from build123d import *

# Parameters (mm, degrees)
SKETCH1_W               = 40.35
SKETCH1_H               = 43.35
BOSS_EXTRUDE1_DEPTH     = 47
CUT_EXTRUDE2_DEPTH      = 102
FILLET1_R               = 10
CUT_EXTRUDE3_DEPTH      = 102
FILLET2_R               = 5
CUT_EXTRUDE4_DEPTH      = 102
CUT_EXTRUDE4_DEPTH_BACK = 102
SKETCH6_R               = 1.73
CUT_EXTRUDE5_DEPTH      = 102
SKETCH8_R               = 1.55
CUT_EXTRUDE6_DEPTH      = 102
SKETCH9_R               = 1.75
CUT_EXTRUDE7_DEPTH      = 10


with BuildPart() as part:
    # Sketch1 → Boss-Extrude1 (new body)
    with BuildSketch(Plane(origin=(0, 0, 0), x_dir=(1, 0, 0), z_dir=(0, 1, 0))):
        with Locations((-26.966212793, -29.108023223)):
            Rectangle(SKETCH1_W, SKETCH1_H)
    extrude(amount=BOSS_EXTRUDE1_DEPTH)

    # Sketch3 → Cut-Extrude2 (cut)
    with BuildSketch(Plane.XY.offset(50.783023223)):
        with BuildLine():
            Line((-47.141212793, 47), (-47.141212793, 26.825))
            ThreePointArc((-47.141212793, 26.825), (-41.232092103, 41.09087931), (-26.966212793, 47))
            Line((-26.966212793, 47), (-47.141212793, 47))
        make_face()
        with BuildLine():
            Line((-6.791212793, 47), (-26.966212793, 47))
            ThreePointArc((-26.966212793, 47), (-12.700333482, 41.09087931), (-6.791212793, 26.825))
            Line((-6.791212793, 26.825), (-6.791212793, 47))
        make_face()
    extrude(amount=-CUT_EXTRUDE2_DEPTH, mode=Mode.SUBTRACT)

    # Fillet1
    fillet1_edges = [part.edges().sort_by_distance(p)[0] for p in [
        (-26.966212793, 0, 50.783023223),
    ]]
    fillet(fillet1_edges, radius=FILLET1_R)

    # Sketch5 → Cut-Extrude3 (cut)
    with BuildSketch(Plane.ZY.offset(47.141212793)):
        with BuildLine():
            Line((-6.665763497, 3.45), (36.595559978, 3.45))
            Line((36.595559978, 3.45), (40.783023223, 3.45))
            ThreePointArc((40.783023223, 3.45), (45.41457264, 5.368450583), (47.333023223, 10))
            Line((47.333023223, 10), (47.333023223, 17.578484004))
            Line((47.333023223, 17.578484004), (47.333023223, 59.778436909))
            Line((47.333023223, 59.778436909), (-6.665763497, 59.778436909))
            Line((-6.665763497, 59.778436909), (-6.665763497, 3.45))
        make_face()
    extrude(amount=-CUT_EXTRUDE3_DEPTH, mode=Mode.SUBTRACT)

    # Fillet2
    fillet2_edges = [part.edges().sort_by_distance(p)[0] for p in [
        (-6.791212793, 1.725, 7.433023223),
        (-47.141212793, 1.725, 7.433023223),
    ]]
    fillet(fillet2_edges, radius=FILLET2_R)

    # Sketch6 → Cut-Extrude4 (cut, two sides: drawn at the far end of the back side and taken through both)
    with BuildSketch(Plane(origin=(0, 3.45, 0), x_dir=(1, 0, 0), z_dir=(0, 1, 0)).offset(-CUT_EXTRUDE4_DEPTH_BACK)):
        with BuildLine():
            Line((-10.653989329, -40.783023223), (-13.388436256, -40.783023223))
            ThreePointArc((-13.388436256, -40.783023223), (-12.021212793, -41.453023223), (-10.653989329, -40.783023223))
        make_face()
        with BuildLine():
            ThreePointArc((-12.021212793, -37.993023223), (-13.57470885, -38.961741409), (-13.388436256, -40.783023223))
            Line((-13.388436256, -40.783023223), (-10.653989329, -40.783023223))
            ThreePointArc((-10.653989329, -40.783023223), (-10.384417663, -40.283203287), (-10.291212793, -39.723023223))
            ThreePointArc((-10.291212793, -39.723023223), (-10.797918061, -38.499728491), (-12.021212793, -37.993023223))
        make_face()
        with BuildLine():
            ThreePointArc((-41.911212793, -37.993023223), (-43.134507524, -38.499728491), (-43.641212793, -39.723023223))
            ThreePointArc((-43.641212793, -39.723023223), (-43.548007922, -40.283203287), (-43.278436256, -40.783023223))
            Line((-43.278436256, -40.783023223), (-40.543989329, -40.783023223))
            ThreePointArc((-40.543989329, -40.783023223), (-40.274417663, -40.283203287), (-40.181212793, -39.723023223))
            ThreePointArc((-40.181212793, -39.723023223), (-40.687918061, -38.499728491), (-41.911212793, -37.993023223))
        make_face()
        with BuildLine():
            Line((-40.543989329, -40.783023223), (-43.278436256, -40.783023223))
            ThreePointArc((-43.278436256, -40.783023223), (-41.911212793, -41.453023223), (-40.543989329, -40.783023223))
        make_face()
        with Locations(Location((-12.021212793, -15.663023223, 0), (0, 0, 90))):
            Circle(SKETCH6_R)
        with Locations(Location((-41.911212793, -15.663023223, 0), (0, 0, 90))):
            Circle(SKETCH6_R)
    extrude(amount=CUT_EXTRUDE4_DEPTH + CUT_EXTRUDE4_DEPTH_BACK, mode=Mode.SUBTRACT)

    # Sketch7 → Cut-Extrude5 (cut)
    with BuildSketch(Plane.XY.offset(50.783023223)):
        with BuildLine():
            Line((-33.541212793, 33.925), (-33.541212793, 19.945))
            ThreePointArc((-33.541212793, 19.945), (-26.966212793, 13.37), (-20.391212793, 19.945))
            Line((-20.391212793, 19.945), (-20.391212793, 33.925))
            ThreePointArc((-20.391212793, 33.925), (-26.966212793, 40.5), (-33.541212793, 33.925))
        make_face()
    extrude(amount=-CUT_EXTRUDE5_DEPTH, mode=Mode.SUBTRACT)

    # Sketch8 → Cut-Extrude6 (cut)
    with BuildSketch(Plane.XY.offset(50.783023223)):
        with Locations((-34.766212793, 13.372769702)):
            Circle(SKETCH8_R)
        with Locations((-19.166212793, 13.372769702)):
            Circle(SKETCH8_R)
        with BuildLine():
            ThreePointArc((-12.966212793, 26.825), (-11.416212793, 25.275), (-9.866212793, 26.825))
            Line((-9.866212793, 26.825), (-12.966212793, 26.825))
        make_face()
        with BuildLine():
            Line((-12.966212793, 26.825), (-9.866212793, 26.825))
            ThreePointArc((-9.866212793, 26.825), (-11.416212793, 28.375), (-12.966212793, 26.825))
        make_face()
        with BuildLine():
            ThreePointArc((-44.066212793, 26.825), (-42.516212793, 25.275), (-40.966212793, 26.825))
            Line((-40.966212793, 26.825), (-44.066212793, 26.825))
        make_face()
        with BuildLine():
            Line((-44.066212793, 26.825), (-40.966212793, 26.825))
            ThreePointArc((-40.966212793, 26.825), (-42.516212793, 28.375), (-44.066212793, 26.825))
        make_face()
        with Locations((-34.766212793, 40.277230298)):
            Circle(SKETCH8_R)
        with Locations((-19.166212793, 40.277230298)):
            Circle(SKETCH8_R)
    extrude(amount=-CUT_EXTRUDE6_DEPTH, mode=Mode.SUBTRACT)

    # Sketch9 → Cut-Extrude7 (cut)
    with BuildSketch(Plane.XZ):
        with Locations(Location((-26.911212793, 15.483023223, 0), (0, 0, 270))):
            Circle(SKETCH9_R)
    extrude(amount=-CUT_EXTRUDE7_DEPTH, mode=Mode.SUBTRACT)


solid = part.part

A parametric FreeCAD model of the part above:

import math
import FreeCAD as App
import Part
import Sketcher
Q = App.Units.Quantity


def edges_at(feature, points):
    """Names of the edges that pass closest to the given points."""
    edges = feature.Shape.Edges
    near = lambda p: min(range(len(edges)), key=lambda i: edges[i].distToShape(Part.Vertex(*p))[0])
    return sorted({f"Edge{near(p) + 1}" for p in points})

doc = App.newDocument("Part")
params = doc.addObject("Spreadsheet::Sheet", "Params")
for row, (alias, value) in enumerate([
    ("sketch1_width", "40.35 mm"),
    ("sketch1_height", "43.35 mm"),
    ("pad1_length", "47 mm"),
    ("pocket1_length", "102 mm"),
    ("fillet_radius", "10 mm"),
    ("sketch3_radius", "6.55 mm"),
    ("pocket2_length", "102 mm"),
    ("fillet2_radius", "5 mm"),
    ("sketch4_diameter", "3.46 mm"),
    ("sketch5_height", "13.98 mm"),
    ("pocket4_length", "102 mm"),
    ("sketch6_diameter", "3.1 mm"),
    ("pocket5_length", "102 mm"),
    ("sketch7_diameter", "3.5 mm"),
    ("pocket6_length", "10 mm"),
], start=1):
    params.set(f"A{row}", alias)
    params.set(f"B{row}", "=" + value)
    params.setAlias(f"B{row}", alias)

body = doc.addObject("PartDesign::Body", "Body")

# Sketch on XZ plane
sketch1 = body.newObject("Sketcher::SketchObject", "Sketch")
sketch1.AttachmentSupport = (doc.getObject("XZ_Plane"), [""])
sketch1.MapMode = "FlatFace"
sketch1.addGeometry(Part.LineSegment(App.Vector(-47.141213, 7.433023, 0), App.Vector(-47.141213, 50.783023, 0)), False)
sketch1.addGeometry(Part.LineSegment(App.Vector(-47.141213, 50.783023, 0), App.Vector(-6.791213, 50.783023, 0)), False)
sketch1.addGeometry(Part.LineSegment(App.Vector(-6.791213, 50.783023, 0), App.Vector(-6.791213, 7.433023, 0)), False)
sketch1.addGeometry(Part.LineSegment(App.Vector(-6.791213, 7.433023, 0), App.Vector(-47.141213, 7.433023, 0)), False)
sketch1.addConstraint(Sketcher.Constraint("Coincident", 0, 2, 1, 1))
sketch1.addConstraint(Sketcher.Constraint("Coincident", 1, 2, 2, 1))
sketch1.addConstraint(Sketcher.Constraint("Coincident", 2, 2, 3, 1))
sketch1.addConstraint(Sketcher.Constraint("Coincident", 3, 2, 0, 1))
sketch1.addConstraint(Sketcher.Constraint("Vertical", 0))
sketch1.addConstraint(Sketcher.Constraint("Horizontal", 1))
sketch1.addConstraint(Sketcher.Constraint("Vertical", 2))
sketch1.addConstraint(Sketcher.Constraint("Horizontal", 3))
sketch1.addConstraint(Sketcher.Constraint("DistanceX", 1, 1, 1, 2, Q("40.35 mm")))
sketch1.addConstraint(Sketcher.Constraint("DistanceY", 0, 1, 0, 2, Q("43.35 mm")))
sketch1.addConstraint(Sketcher.Constraint("DistanceX", 0, 2, -1, 1, Q("47.141213 mm")))
sketch1.addConstraint(Sketcher.Constraint("DistanceY", -1, 1, 0, 2, Q("50.783023 mm")))
sketch1.setExpression("Constraints[8]", "Params.sketch1_width")
sketch1.setExpression("Constraints[9]", "Params.sketch1_height")
pad1 = body.newObject("PartDesign::Pad", "Pad")
pad1.Profile = sketch1
pad1.setExpression("Length", "Params.pad1_length")
pad1.Reversed = True

# Sketch on XY plane
sketch2 = body.newObject("Sketcher::SketchObject", "Sketch001")
sketch2.AttachmentSupport = (doc.getObject("XY_Plane"), [""])
sketch2.MapMode = "FlatFace"
sketch2.AttachmentOffset = App.Placement(App.Vector(0, 0, 50.783023), App.Rotation())
sketch2.addGeometry(Part.LineSegment(App.Vector(-47.141213, 47, 0), App.Vector(-47.141213, 26.825, 0)), False)
sketch2.addGeometry(Part.ArcOfCircle(Part.Circle(App.Vector(-26.966213, 26.825, 0), App.Vector(0, 0, 1), 20.175), math.radians(90), math.radians(180)), False)
sketch2.addGeometry(Part.LineSegment(App.Vector(-26.966213, 47, 0), App.Vector(-47.141213, 47, 0)), False)
sketch2.addGeometry(Part.LineSegment(App.Vector(-6.791213, 47, 0), App.Vector(-26.966213, 47, 0)), False)
sketch2.addGeometry(Part.ArcOfCircle(Part.Circle(App.Vector(-26.966213, 26.825, 0), App.Vector(0, 0, 1), 20.175), math.radians(0), math.radians(90)), False)
sketch2.addGeometry(Part.LineSegment(App.Vector(-6.791213, 26.825, 0), App.Vector(-6.791213, 47, 0)), False)
sketch2.addConstraint(Sketcher.Constraint("Tangent", 0, 2, 1, 2))
sketch2.addConstraint(Sketcher.Constraint("Tangent", 1, 1, 2, 1))
sketch2.addConstraint(Sketcher.Constraint("Coincident", 2, 2, 0, 1))
sketch2.addConstraint(Sketcher.Constraint("Tangent", 3, 2, 4, 2))
sketch2.addConstraint(Sketcher.Constraint("Tangent", 4, 1, 5, 1))
sketch2.addConstraint(Sketcher.Constraint("Coincident", 5, 2, 3, 1))
sketch2.addConstraint(Sketcher.Constraint("Vertical", 0))
sketch2.addConstraint(Sketcher.Constraint("Horizontal", 2))
sketch2.addConstraint(Sketcher.Constraint("Horizontal", 3))
sketch2.addConstraint(Sketcher.Constraint("Vertical", 5))
sketch2.addConstraint(Sketcher.Constraint("Coincident", 4, 3, 1, 3))
sketch2.addConstraint(Sketcher.Constraint("Equal", 1, 4))
sketch2.addConstraint(Sketcher.Constraint("DistanceY", -1, 1, 1, 1, Q("47 mm")))
sketch2.addConstraint(Sketcher.Constraint("Radius", 1, Q("20.175 mm")))
sketch2.addConstraint(Sketcher.Constraint("DistanceX", 1, 3, -1, 1, Q("26.966213 mm")))
pocket1 = body.newObject("PartDesign::Pocket", "Pocket")
pocket1.Profile = sketch2
pocket1.setExpression("Length", "Params.pocket1_length")
doc.recompute()

fillet = body.newObject("PartDesign::Fillet", "Fillet")
fillet.Base = (pocket1, edges_at(pocket1, [(-26.966, 0, 50.783)]))
fillet.setExpression("Radius", "Params.fillet_radius")

# Sketch on YZ plane
sketch3 = body.newObject("Sketcher::SketchObject", "Sketch002")
sketch3.AttachmentSupport = (doc.getObject("YZ_Plane"), [""])
sketch3.MapMode = "FlatFace"
sketch3.AttachmentOffset = App.Placement(App.Vector(0, 0, -47.141213), App.Rotation())
sketch3.addGeometry(Part.LineSegment(App.Vector(3.45, -6.665763, 0), App.Vector(3.45, 40.783023, 0)), False)
sketch3.addGeometry(Part.ArcOfCircle(Part.Circle(App.Vector(10, 40.783023, 0), App.Vector(0, 0, 1), 6.55), math.radians(90), math.radians(180)), False)
sketch3.addGeometry(Part.LineSegment(App.Vector(10, 47.333023, 0), App.Vector(59.778437, 47.333023, 0)), False)
sketch3.addGeometry(Part.LineSegment(App.Vector(59.778437, 47.333023, 0), App.Vector(59.778437, -6.665763, 0)), False)
sketch3.addGeometry(Part.LineSegment(App.Vector(59.778437, -6.665763, 0), App.Vector(3.45, -6.665763, 0)), False)
sketch3.addConstraint(Sketcher.Constraint("Tangent", 0, 2, 1, 2))
sketch3.addConstraint(Sketcher.Constraint("Tangent", 1, 1, 2, 1))
sketch3.addConstraint(Sketcher.Constraint("Coincident", 2, 2, 3, 1))
sketch3.addConstraint(Sketcher.Constraint("Coincident", 3, 2, 4, 1))
sketch3.addConstraint(Sketcher.Constraint("Coincident", 4, 2, 0, 1))
sketch3.addConstraint(Sketcher.Constraint("Vertical", 0))
sketch3.addConstraint(Sketcher.Constraint("Horizontal", 2))
sketch3.addConstraint(Sketcher.Constraint("Vertical", 3))
sketch3.addConstraint(Sketcher.Constraint("Horizontal", 4))
sketch3.addConstraint(Sketcher.Constraint("Radius", 1, Q("6.55 mm")))
sketch3.addConstraint(Sketcher.Constraint("DistanceX", -1, 1, 1, 3, Q("10 mm")))
sketch3.addConstraint(Sketcher.Constraint("DistanceX", 2, 1, 2, 2, Q("49.778437 mm")))
sketch3.addConstraint(Sketcher.Constraint("DistanceY", 0, 1, 0, 2, Q("47.448787 mm")))
sketch3.addConstraint(Sketcher.Constraint("DistanceY", -1, 1, 1, 3, Q("40.783023 mm")))
sketch3.setExpression("Constraints[9]", "Params.sketch3_radius")
pocket2 = body.newObject("PartDesign::Pocket", "Pocket001")
pocket2.Profile = sketch3
pocket2.setExpression("Length", "Params.pocket2_length")
pocket2.Reversed = True
doc.recompute()

fillet2 = body.newObject("PartDesign::Fillet", "Fillet001")
fillet2.Base = (pocket2, edges_at(pocket2, [(-6.791, 1.725, 7.433), (-47.141, 1.725, 7.433)]))
fillet2.setExpression("Radius", "Params.fillet2_radius")

# Sketch on XZ plane
sketch4 = body.newObject("Sketcher::SketchObject", "Sketch003")
sketch4.AttachmentSupport = (doc.getObject("XZ_Plane"), [""])
sketch4.MapMode = "FlatFace"
sketch4.AttachmentOffset = App.Placement(App.Vector(0, 0, -3.45), App.Rotation())
sketch4.addGeometry(Part.ArcOfCircle(Part.Circle(App.Vector(-12.021213, 39.723023, 0), App.Vector(0, 0, 1), 1.73), math.radians(37.786203), math.radians(142.213797)), False)
sketch4.addGeometry(Part.ArcOfCircle(Part.Circle(App.Vector(-12.021213, 39.723023, 0), App.Vector(0, 0, 1), 1.73), math.radians(0), math.radians(37.786203)), False)
sketch4.addGeometry(Part.ArcOfCircle(Part.Circle(App.Vector(-12.021213, 39.723023, 0), App.Vector(0, 0, 1), 1.73), math.radians(-90), math.radians(0)), False)
sketch4.addGeometry(Part.ArcOfCircle(Part.Circle(App.Vector(-12.021213, 39.723023, 0), App.Vector(0, 0, 1), 1.73), math.radians(142.213797), math.radians(270)), False)
sketch4.addGeometry(Part.ArcOfCircle(Part.Circle(App.Vector(-41.911213, 39.723023, 0), App.Vector(0, 0, 1), 1.73), math.radians(0), math.radians(37.786203)), False)
sketch4.addGeometry(Part.ArcOfCircle(Part.Circle(App.Vector(-41.911213, 39.723023, 0), App.Vector(0, 0, 1), 1.73), math.radians(-90), math.radians(0)), False)
sketch4.addGeometry(Part.ArcOfCircle(Part.Circle(App.Vector(-41.911213, 39.723023, 0), App.Vector(0, 0, 1), 1.73), math.radians(180), math.radians(270)), False)
sketch4.addGeometry(Part.ArcOfCircle(Part.Circle(App.Vector(-41.911213, 39.723023, 0), App.Vector(0, 0, 1), 1.73), math.radians(142.213797), math.radians(180)), False)
sketch4.addGeometry(Part.ArcOfCircle(Part.Circle(App.Vector(-41.911213, 39.723023, 0), App.Vector(0, 0, 1), 1.73), math.radians(37.786203), math.radians(142.213797)), False)
sketch4.addGeometry(Part.Circle(App.Vector(-12.021213, 15.663023, 0), App.Vector(0, 0, 1), 1.73), False)
sketch4.addGeometry(Part.Circle(App.Vector(-41.911213, 15.663023, 0), App.Vector(0, 0, 1), 1.73), False)
sketch4.addConstraint(Sketcher.Constraint("Tangent", 0, 1, 1, 2))
sketch4.addConstraint(Sketcher.Constraint("Tangent", 1, 1, 2, 2))
sketch4.addConstraint(Sketcher.Constraint("Tangent", 2, 1, 3, 2))
sketch4.addConstraint(Sketcher.Constraint("Tangent", 3, 1, 0, 2))
sketch4.addConstraint(Sketcher.Constraint("Tangent", 4, 1, 5, 2))
sketch4.addConstraint(Sketcher.Constraint("Tangent", 5, 1, 6, 2))
sketch4.addConstraint(Sketcher.Constraint("Tangent", 6, 1, 7, 2))
sketch4.addConstraint(Sketcher.Constraint("Tangent", 7, 1, 8, 2))
sketch4.addConstraint(Sketcher.Constraint("Tangent", 8, 1, 4, 2))
sketch4.addConstraint(Sketcher.Constraint("Coincident", 6, 3, 4, 3))
sketch4.addConstraint(Sketcher.Constraint("Equal", 0, 1))
sketch4.addConstraint(Sketcher.Constraint("Equal", 3, 4))
sketch4.addConstraint(Sketcher.Constraint("Equal", 8, 9))
sketch4.addConstraint(Sketcher.Constraint("Equal", 9, 10))
sketch4.addConstraint(Sketcher.Constraint("Horizontal", 3, 3, 4, 3))
sketch4.addConstraint(Sketcher.Constraint("Horizontal", 9, 3, 10, 3))
sketch4.addConstraint(Sketcher.Constraint("Horizontal", 8, 3, 1, 1))
sketch4.addConstraint(Sketcher.Constraint("Horizontal", 0, 1, 3, 1))
sketch4.addConstraint(Sketcher.Constraint("Horizontal", 1, 1, 4, 1))
sketch4.addConstraint(Sketcher.Constraint("Horizontal", 4, 1, 6, 1))
sketch4.addConstraint(Sketcher.Constraint("Horizontal", 3, 1, 7, 1))
sketch4.addConstraint(Sketcher.Constraint("Horizontal", 7, 1, 8, 1))
sketch4.addConstraint(Sketcher.Constraint("Vertical", 3, 3, 9, 3))
sketch4.addConstraint(Sketcher.Constraint("Vertical", 8, 3, 10, 3))
sketch4.addConstraint(Sketcher.Constraint("Vertical", 9, 3, 2, 1))
sketch4.addConstraint(Sketcher.Constraint("Vertical", 10, 3, 5, 1))
sketch4.addConstraint(Sketcher.Constraint("Diameter", 9, Q("3.46 mm")))
sketch4.addConstraint(Sketcher.Constraint("DistanceX", 4, 3, 0, 3, Q("29.89 mm")))
sketch4.addConstraint(Sketcher.Constraint("DistanceY", 9, 3, 2, 3, Q("24.06 mm")))
sketch4.addConstraint(Sketcher.Constraint("DistanceY", 1, 3, 0, 1, Q("1.06 mm")))
sketch4.addConstraint(Sketcher.Constraint("DistanceX", 0, 1, -1, 1, Q("10.653989 mm")))
sketch4.addConstraint(Sketcher.Constraint("DistanceY", -1, 1, 0, 3, Q("39.723023 mm")))
sketch4.setExpression("Constraints[26]", "Params.sketch4_diameter")
pocket3 = body.newObject("PartDesign::Pocket", "Pocket002")
pocket3.Profile = sketch4
pocket3.Type = "ThroughAll"
pocket3.Midplane = True

# Sketch on XY plane
sketch5 = body.newObject("Sketcher::SketchObject", "Sketch004")
sketch5.AttachmentSupport = (doc.getObject("XY_Plane"), [""])
sketch5.MapMode = "FlatFace"
sketch5.AttachmentOffset = App.Placement(App.Vector(0, 0, 50.783023), App.Rotation())
sketch5.addGeometry(Part.LineSegment(App.Vector(-33.541213, 33.925, 0), App.Vector(-33.541213, 19.945, 0)), False)
sketch5.addGeometry(Part.ArcOfCircle(Part.Circle(App.Vector(-26.966213, 19.945, 0), App.Vector(0, 0, 1), 6.575), math.radians(180), math.radians(360)), False)
sketch5.addGeometry(Part.LineSegment(App.Vector(-20.391213, 19.945, 0), App.Vector(-20.391213, 33.925, 0)), False)
sketch5.addGeometry(Part.ArcOfCircle(Part.Circle(App.Vector(-26.966213, 33.925, 0), App.Vector(0, 0, 1), 6.575), math.radians(0), math.radians(180)), False)
sketch5.addConstraint(Sketcher.Constraint("Tangent", 0, 2, 1, 1))
sketch5.addConstraint(Sketcher.Constraint("Tangent", 1, 2, 2, 1))
sketch5.addConstraint(Sketcher.Constraint("Tangent", 2, 2, 3, 1))
sketch5.addConstraint(Sketcher.Constraint("Tangent", 3, 2, 0, 1))
sketch5.addConstraint(Sketcher.Constraint("Vertical", 0))
sketch5.addConstraint(Sketcher.Constraint("Vertical", 2))
sketch5.addConstraint(Sketcher.Constraint("Radius", 1, Q("6.575 mm")))
sketch5.addConstraint(Sketcher.Constraint("DistanceY", 0, 2, 0, 1, Q("13.98 mm")))
sketch5.addConstraint(Sketcher.Constraint("DistanceY", -1, 1, 1, 3, Q("19.945 mm")))
sketch5.addConstraint(Sketcher.Constraint("DistanceX", 1, 3, -1, 1, Q("26.966213 mm")))
sketch5.setExpression("Constraints[7]", "Params.sketch5_height")
pocket4 = body.newObject("PartDesign::Pocket", "Pocket003")
pocket4.Profile = sketch5
pocket4.setExpression("Length", "Params.pocket4_length")

# Sketch on XY plane
sketch6 = body.newObject("Sketcher::SketchObject", "Sketch005")
sketch6.AttachmentSupport = (doc.getObject("XY_Plane"), [""])
sketch6.MapMode = "FlatFace"
sketch6.AttachmentOffset = App.Placement(App.Vector(0, 0, 50.783023), App.Rotation())
sketch6.addGeometry(Part.Circle(App.Vector(-34.766213, 13.37277, 0), App.Vector(0, 0, 1), 1.55), False)
sketch6.addGeometry(Part.Circle(App.Vector(-19.166213, 13.37277, 0), App.Vector(0, 0, 1), 1.55), False)
sketch6.addGeometry(Part.Circle(App.Vector(-11.416213, 26.825, 0), App.Vector(0, 0, 1), 1.55), False)
sketch6.addGeometry(Part.Circle(App.Vector(-42.516213, 26.825, 0), App.Vector(0, 0, 1), 1.55), False)
sketch6.addGeometry(Part.Circle(App.Vector(-34.766213, 40.27723, 0), App.Vector(0, 0, 1), 1.55), False)
sketch6.addGeometry(Part.Circle(App.Vector(-19.166213, 40.27723, 0), App.Vector(0, 0, 1), 1.55), False)
sketch6.addConstraint(Sketcher.Constraint("Equal", 0, 1))
sketch6.addConstraint(Sketcher.Constraint("Equal", 1, 2))
sketch6.addConstraint(Sketcher.Constraint("Equal", 2, 3))
sketch6.addConstraint(Sketcher.Constraint("Equal", 3, 4))
sketch6.addConstraint(Sketcher.Constraint("Equal", 4, 5))
sketch6.addConstraint(Sketcher.Constraint("Horizontal", 0, 3, 1, 3))
sketch6.addConstraint(Sketcher.Constraint("Horizontal", 2, 3, 3, 3))
sketch6.addConstraint(Sketcher.Constraint("Horizontal", 4, 3, 5, 3))
sketch6.addConstraint(Sketcher.Constraint("Vertical", 0, 3, 4, 3))
sketch6.addConstraint(Sketcher.Constraint("Vertical", 1, 3, 5, 3))
sketch6.addConstraint(Sketcher.Constraint("Diameter", 0, Q("3.1 mm")))
sketch6.addConstraint(Sketcher.Constraint("DistanceX", 0, 3, 1, 3, Q("15.6 mm")))
sketch6.addConstraint(Sketcher.Constraint("DistanceX", 3, 3, 2, 3, Q("31.1 mm")))
sketch6.addConstraint(Sketcher.Constraint("DistanceX", 1, 3, 2, 3, Q("7.75 mm")))
sketch6.addConstraint(Sketcher.Constraint("DistanceY", -1, 1, 2, 3, Q("26.825 mm")))
sketch6.addConstraint(Sketcher.Constraint("DistanceY", -1, 1, 0, 3, Q("13.37277 mm")))
sketch6.addConstraint(Sketcher.Constraint("DistanceY", -1, 1, 4, 3, Q("40.27723 mm")))
sketch6.addConstraint(Sketcher.Constraint("DistanceX", 0, 3, -1, 1, Q("34.766213 mm")))
sketch6.setExpression("Constraints[10]", "Params.sketch6_diameter")
pocket5 = body.newObject("PartDesign::Pocket", "Pocket004")
pocket5.Profile = sketch6
pocket5.setExpression("Length", "Params.pocket5_length")

# Sketch on XZ plane
sketch7 = body.newObject("Sketcher::SketchObject", "Sketch006")
sketch7.AttachmentSupport = (doc.getObject("XZ_Plane"), [""])
sketch7.MapMode = "FlatFace"
sketch7.addGeometry(Part.Circle(App.Vector(-26.911213, 15.483023, 0), App.Vector(0, 0, 1), 1.75), False)
sketch7.addConstraint(Sketcher.Constraint("Diameter", 0, Q("3.5 mm")))
sketch7.addConstraint(Sketcher.Constraint("DistanceX", 0, 3, -1, 1, Q("26.911213 mm")))
sketch7.addConstraint(Sketcher.Constraint("DistanceY", -1, 1, 0, 3, Q("15.483023 mm")))
sketch7.setExpression("Constraints[0]", "Params.sketch7_diameter")
pocket6 = body.newObject("PartDesign::Pocket", "Pocket005")
pocket6.Profile = sketch7
pocket6.setExpression("Length", "Params.pocket6_length")

doc.recompute()
